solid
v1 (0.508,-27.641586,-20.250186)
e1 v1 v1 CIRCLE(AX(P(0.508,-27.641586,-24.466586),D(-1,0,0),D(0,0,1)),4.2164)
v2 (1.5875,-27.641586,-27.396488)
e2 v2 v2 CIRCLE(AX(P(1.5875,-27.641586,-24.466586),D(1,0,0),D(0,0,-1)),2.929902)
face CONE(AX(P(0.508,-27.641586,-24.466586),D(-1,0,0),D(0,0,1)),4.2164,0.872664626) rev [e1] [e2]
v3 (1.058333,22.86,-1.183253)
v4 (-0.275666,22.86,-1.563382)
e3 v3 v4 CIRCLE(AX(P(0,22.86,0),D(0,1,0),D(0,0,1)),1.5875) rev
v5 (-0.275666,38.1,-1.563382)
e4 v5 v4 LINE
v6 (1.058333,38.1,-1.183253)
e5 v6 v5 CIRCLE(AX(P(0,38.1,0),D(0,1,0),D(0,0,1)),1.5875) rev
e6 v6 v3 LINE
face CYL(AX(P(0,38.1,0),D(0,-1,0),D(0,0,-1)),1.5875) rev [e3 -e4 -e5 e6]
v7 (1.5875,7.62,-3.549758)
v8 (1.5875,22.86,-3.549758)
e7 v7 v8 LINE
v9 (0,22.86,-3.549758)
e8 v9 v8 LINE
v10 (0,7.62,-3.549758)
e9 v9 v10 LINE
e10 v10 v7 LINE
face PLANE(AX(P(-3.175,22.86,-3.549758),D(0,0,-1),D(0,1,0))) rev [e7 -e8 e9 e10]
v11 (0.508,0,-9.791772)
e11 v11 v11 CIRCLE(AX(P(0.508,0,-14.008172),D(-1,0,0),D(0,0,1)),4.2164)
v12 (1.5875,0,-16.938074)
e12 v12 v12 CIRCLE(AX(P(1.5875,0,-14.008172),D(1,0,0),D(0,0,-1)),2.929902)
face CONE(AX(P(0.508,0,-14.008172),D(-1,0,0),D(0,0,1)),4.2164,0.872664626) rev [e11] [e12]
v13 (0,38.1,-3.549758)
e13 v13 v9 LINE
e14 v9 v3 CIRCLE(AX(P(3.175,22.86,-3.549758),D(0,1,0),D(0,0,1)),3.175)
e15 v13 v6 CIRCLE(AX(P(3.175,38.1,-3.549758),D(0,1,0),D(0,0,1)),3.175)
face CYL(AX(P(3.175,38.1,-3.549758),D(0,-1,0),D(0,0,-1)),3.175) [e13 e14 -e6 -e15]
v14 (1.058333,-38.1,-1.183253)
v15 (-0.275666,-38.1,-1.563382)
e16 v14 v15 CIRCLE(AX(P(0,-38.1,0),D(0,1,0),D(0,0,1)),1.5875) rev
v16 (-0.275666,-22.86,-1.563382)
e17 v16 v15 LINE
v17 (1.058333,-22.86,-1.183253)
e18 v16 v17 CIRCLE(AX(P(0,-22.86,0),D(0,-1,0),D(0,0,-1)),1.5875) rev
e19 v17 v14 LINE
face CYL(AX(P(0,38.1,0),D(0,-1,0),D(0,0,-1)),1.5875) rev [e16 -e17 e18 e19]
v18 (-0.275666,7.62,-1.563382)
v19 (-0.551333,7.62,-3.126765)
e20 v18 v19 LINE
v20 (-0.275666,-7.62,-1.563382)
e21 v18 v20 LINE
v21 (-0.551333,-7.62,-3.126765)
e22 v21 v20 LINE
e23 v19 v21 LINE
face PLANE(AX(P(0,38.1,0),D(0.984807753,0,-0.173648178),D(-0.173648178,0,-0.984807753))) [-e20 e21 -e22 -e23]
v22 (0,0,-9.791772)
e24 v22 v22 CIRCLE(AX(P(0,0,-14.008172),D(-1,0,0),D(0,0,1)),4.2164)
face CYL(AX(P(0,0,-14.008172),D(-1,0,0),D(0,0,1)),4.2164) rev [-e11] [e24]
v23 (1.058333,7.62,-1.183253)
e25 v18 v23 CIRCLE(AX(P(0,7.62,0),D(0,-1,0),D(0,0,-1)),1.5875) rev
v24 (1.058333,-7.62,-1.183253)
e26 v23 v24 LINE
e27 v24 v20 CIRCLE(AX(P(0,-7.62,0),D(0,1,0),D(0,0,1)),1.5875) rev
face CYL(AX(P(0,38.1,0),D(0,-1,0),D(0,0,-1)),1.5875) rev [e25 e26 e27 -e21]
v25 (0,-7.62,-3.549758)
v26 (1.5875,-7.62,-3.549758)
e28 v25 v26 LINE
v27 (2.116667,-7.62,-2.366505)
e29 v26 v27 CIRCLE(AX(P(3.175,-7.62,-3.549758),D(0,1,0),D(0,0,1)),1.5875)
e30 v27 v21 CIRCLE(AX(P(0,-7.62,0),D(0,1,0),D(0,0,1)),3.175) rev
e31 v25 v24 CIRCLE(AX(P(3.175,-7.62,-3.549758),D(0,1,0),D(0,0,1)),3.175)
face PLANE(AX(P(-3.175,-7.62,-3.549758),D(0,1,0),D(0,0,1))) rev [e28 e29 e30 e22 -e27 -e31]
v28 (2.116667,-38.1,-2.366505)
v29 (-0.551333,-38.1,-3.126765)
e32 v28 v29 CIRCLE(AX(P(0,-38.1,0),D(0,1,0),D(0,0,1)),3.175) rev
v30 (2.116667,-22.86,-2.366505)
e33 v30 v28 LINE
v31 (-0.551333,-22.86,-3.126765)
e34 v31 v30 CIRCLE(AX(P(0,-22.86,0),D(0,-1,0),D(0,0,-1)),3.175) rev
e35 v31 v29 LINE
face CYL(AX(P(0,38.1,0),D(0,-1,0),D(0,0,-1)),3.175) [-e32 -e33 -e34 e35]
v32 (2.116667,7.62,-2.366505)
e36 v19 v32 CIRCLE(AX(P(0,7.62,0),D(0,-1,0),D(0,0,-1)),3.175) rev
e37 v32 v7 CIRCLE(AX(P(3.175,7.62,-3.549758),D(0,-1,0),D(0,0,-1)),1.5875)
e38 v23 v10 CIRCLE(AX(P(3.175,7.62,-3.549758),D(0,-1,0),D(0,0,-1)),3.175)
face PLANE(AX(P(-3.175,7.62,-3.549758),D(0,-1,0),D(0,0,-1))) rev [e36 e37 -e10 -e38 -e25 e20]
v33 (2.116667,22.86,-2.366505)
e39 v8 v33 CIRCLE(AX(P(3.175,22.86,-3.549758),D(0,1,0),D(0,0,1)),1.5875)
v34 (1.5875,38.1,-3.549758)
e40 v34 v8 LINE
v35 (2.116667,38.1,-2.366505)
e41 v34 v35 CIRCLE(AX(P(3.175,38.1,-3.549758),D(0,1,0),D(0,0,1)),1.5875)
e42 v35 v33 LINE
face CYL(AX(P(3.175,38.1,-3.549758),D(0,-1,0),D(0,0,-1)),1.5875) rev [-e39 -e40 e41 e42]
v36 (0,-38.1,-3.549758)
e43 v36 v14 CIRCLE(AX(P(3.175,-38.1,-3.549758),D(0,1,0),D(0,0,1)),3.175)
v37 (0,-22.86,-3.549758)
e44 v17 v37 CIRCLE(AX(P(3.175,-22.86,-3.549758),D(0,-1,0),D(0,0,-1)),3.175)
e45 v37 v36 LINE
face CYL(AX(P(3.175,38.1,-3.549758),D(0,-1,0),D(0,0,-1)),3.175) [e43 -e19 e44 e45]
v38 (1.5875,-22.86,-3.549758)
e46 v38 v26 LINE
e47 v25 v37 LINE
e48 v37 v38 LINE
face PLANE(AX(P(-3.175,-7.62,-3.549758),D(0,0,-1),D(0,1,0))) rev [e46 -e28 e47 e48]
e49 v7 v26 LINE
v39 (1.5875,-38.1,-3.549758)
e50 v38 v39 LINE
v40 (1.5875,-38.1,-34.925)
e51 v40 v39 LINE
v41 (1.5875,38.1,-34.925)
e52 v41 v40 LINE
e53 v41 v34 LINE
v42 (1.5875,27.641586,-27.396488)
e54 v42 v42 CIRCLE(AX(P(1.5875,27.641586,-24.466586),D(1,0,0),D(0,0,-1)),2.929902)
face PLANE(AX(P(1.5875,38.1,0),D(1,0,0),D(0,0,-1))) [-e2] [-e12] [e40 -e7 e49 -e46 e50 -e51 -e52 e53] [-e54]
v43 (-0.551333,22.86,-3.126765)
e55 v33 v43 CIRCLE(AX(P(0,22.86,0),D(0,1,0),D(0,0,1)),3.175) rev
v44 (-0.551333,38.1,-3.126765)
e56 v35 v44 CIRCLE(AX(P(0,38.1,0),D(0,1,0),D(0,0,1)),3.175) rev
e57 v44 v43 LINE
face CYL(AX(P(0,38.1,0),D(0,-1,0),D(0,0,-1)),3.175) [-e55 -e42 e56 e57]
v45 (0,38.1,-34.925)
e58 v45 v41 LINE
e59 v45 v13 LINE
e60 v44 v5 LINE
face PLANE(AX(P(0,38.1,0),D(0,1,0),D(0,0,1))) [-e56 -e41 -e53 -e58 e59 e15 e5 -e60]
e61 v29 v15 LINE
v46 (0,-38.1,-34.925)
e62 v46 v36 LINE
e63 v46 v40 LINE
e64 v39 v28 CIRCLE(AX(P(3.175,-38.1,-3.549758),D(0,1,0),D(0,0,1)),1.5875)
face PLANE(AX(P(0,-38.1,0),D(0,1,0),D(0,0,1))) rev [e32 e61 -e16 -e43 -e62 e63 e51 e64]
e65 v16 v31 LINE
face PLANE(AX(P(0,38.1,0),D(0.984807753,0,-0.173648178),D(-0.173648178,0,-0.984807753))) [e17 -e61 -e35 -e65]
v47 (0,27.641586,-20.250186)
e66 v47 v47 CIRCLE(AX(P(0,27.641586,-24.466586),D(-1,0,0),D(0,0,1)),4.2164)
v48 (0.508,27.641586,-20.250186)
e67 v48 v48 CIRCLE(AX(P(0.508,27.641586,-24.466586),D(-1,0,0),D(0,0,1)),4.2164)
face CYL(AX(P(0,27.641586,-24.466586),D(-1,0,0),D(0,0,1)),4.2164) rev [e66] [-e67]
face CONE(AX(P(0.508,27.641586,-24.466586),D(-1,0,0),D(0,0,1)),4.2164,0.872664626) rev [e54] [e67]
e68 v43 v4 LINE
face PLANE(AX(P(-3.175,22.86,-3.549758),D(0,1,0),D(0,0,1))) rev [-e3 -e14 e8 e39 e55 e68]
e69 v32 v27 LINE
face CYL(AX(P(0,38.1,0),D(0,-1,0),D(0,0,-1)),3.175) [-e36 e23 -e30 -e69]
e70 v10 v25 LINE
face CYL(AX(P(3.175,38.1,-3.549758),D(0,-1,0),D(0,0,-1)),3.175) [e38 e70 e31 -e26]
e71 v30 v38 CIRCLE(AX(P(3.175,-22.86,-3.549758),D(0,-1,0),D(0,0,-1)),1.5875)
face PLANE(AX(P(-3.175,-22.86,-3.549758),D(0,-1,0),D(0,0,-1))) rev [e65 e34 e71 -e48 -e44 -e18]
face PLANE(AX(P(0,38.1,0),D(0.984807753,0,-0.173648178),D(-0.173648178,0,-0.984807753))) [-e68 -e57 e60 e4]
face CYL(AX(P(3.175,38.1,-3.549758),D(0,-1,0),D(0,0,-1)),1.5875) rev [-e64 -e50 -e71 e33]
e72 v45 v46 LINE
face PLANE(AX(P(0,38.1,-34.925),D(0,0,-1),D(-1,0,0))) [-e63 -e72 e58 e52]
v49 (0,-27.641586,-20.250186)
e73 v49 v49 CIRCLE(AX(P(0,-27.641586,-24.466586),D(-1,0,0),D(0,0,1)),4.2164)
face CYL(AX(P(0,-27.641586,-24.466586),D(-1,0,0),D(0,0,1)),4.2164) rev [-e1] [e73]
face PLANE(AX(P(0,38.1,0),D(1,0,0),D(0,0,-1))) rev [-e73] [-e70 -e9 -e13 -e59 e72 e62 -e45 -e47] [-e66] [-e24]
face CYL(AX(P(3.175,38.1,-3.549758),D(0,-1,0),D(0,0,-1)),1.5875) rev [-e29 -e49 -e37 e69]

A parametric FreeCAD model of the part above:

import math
import FreeCAD as App
import Part
import Sketcher
from FreeCAD import Vector
Q = App.Units.Quantity


def add_polygon(sketch, points):
    """Adds a closed chain of lines whose ends are joined by coincident constraints."""
    first, n = sketch.GeometryCount, len(points)
    for a, b in zip(points, points[1:] + points[:1]):
        sketch.addGeometry(Part.LineSegment(App.Vector(*a, 0), App.Vector(*b, 0)), False)
    for i in range(n):
        sketch.addConstraint(Sketcher.Constraint("Coincident", first + i, 2, first + (i + 1) % n, 1))

doc = App.newDocument("Part")
body = doc.addObject("PartDesign::Body", "Body")

sketch1 = body.newObject("Sketcher::SketchObject", "Sketch")
sketch1.AttachmentSupport = (doc.getObject("XZ_Plane"), [""])
sketch1.MapMode = "FlatFace"
sketch1.addGeometry(Part.LineSegment(Vector(1.6, -34.9, 0), Vector(0, -34.9, 0)), False)
sketch1.addGeometry(Part.LineSegment(Vector(0, -34.9, 0), Vector(0, -3.5, 0)), False)
sketch1.addGeometry(Part.ArcOfCircle(Part.Circle(Vector(3.2, -3.5, 0), Vector(0, 0, 1), 3.2), math.radians(132), math.radians(180)), False)
sketch1.addGeometry(Part.ArcOfCircle(Part.Circle(Vector(0, 0, 0), Vector(0, 0, 1), 1.6), math.radians(-48), math.radians(260)), False)
sketch1.addGeometry(Part.LineSegment(Vector(-0.3, -1.6, 0), Vector(-0.6, -3.1, 0)), False)
sketch1.addGeometry(Part.ArcOfCircle(Part.Circle(Vector(0, 0, 0), Vector(0, 0, 1), 3.2), math.radians(-48), math.radians(260)), False)
sketch1.addGeometry(Part.ArcOfCircle(Part.Circle(Vector(3.2, -3.5, 0), Vector(0, 0, 1), 1.6), math.radians(132), math.radians(180)), False)
sketch1.addGeometry(Part.LineSegment(Vector(1.6, -3.5, 0), Vector(1.6, -34.9, 0)), False)
sketch1.addConstraint(Sketcher.Constraint("Coincident", 0, 2, 1, 1))
sketch1.addConstraint(Sketcher.Constraint("Tangent", 1, 2, 2, 2))
sketch1.addConstraint(Sketcher.Constraint("Tangent", 2, 1, 3, 1))
sketch1.addConstraint(Sketcher.Constraint("Coincident", 3, 2, 4, 1))
sketch1.addConstraint(Sketcher.Constraint("Coincident", 4, 2, 5, 2))
sketch1.addConstraint(Sketcher.Constraint("Tangent", 5, 1, 6, 1))
sketch1.addConstraint(Sketcher.Constraint("Tangent", 6, 2, 7, 1))
sketch1.addConstraint(Sketcher.Constraint("Coincident", 7, 2, 0, 1))
sketch1.addConstraint(Sketcher.Constraint("Horizontal", 0))
sketch1.addConstraint(Sketcher.Constraint("Vertical", 1))
sketch1.addConstraint(Sketcher.Constraint("Vertical", 7))
sketch1.addConstraint(Sketcher.Constraint("Coincident", 3, 3, -1, 1))
sketch1.addConstraint(Sketcher.Constraint("Coincident", 5, 3, -1, 1))
sketch1.addConstraint(Sketcher.Constraint("Coincident", 6, 3, 2, 3))
sketch1.addConstraint(Sketcher.Constraint("Equal", 2, 5))
sketch1.addConstraint(Sketcher.Constraint("PointOnObject", 0, 2, -2))
sketch1.addConstraint(Sketcher.Constraint("Angle", 4, Q("-100 deg")))
sketch1.addConstraint(Sketcher.Constraint("Radius", 2, Q("0.125 in")))
sketch1.addConstraint(Sketcher.Constraint("Radius", 3, Q("0.0625 in")))
sketch1.addConstraint(Sketcher.Constraint("DistanceY", 0, 2, -1, 1, Q("1.375 in")))
sketch1.addConstraint(Sketcher.Constraint("DistanceX", 3, 2, 2, 1, 1.334))
pad1 = body.newObject("PartDesign::Pad", "Pad")
pad1.Profile = sketch1
pad1.Length = Q("3 in")
pad1.Midplane = True

sketch2 = body.newObject("Sketcher::SketchObject", "Sketch001")
sketch2.AttachmentSupport = (doc.getObject("YZ_Plane"), [""])
sketch2.MapMode = "FlatFace"
add_polygon(sketch2, [(23, 3), (8, 3), (8, -4), (23, -4)])
add_polygon(sketch2, [(-8, 3), (-23, 3), (-23, -4), (-8, -4)])
sketch2.addConstraint(Sketcher.Constraint("Horizontal", 0))
sketch2.addConstraint(Sketcher.Constraint("Vertical", 1))
sketch2.addConstraint(Sketcher.Constraint("Horizontal", 2))
sketch2.addConstraint(Sketcher.Constraint("Vertical", 3))
sketch2.addConstraint(Sketcher.Constraint("Horizontal", 4))
sketch2.addConstraint(Sketcher.Constraint("Vertical", 5))
sketch2.addConstraint(Sketcher.Constraint("Horizontal", 6))
sketch2.addConstraint(Sketcher.Constraint("Vertical", 7))
sketch2.addConstraint(Sketcher.Constraint("Symmetric", 3, 2, 4, 2, -2))
sketch2.addConstraint(Sketcher.Constraint("Symmetric", 1, 2, 6, 2, -2))
sketch2.addConstraint(Sketcher.Constraint("DistanceX", 0, 2, 0, 1, Q("0.6 in")))
sketch2.addConstraint(Sketcher.Constraint("DistanceX", -1, 1, 0, 2, Q("0.3 in")))
sketch2.addConstraint(Sketcher.Constraint("DistanceY", -1, 1, 0, 2, Q("0.125 in")))
sketch2.addConstraint(Sketcher.Constraint("DistanceY", 1, 2, 1, 1, 6.724758))
pocket1 = body.newObject("PartDesign::Pocket", "Pocket")
pocket1.Profile = sketch2
pocket1.Type = "ThroughAll"
pocket1.Midplane = True

sketch3 = body.newObject("Sketcher::SketchObject", "Sketch002")
sketch3.AttachmentSupport = (doc.getObject("XZ_Plane"), [""])
sketch3.MapMode = "FlatFace"
sketch3.AttachmentOffset = App.Placement(Vector(0, 0, 27.641586), App.Rotation())
add_polygon(sketch3, [(3.2, -24.5), (0, -24.5), (0, -20.3), (0.5, -20.3), (2.2, -22.2), (3.2, -22.2)])
sketch3.addGeometry(Part.LineSegment(Vector(0, -24.5, 0), Vector(3.2, -24.5, 0)), True)
sketch3.addConstraint(Sketcher.Constraint("Horizontal", 0))
sketch3.addConstraint(Sketcher.Constraint("Vertical", 1))
sketch3.addConstraint(Sketcher.Constraint("Horizontal", 2))
sketch3.addConstraint(Sketcher.Constraint("Horizontal", 4))
sketch3.addConstraint(Sketcher.Constraint("Vertical", 5))
sketch3.addConstraint(Sketcher.Constraint("Horizontal", 6))
sketch3.addConstraint(Sketcher.Constraint("Coincident", 6, 1, 0, 2))
sketch3.addConstraint(Sketcher.Constraint("PointOnObject", 0, 2, -2))
sketch3.addConstraint(Sketcher.Constraint("Vertical", 4, 2, 6, 2))
sketch3.addConstraint(Sketcher.Constraint("Angle", 3, Q("-50 deg")))
sketch3.addConstraint(Sketcher.Constraint("DistanceX", 2, 1, 2, 2, Q("0.02 in")))
sketch3.addConstraint(Sketcher.Constraint("DistanceX", 0, 2, 0, 1, Q("0.125 in")))
sketch3.addConstraint(Sketcher.Constraint("DistanceY", 1, 1, 1, 2, Q("0.166 in")))
sketch3.addConstraint(Sketcher.Constraint("DistanceY", 5, 2, 5, 1, Q("0.0885 in")))
sketch3.addConstraint(Sketcher.Constraint("DistanceY", 0, 2, -1, 1, 24.466586))
groove = body.newObject("PartDesign::Groove", "Groove")
groove.Profile = sketch3
groove.ReferenceAxis = (sketch3, ["Axis0"])
groove.Angle = 360
doc.recompute()

datumline = body.newObject("PartDesign::Line", "DatumLine")
datumline.Placement = App.Placement(Vector(0, 0, 0), App.Rotation(Vector(0, 0, 1), Vector(0, 0.935292579, 0.35387539)))
linearpattern = body.newObject("PartDesign::LinearPattern", "LinearPattern")
linearpattern.Originals = [groove]
linearpattern.Direction = (datumline, [""])
linearpattern.Mode = "offset"
linearpattern.Offset = 29.553946
linearpattern.Occurrences = 2
body.Tip = linearpattern
doc.recompute()

linearpattern2 = body.newObject("PartDesign::LinearPattern", "LinearPattern001")
linearpattern2.Originals = [groove]
linearpattern2.Direction = (doc.getObject("Y_Axis"), [""])
linearpattern2.Mode = "offset"
linearpattern2.Offset = 55.283172
linearpattern2.Occurrences = 2
body.Tip = linearpattern2

doc.recompute()
